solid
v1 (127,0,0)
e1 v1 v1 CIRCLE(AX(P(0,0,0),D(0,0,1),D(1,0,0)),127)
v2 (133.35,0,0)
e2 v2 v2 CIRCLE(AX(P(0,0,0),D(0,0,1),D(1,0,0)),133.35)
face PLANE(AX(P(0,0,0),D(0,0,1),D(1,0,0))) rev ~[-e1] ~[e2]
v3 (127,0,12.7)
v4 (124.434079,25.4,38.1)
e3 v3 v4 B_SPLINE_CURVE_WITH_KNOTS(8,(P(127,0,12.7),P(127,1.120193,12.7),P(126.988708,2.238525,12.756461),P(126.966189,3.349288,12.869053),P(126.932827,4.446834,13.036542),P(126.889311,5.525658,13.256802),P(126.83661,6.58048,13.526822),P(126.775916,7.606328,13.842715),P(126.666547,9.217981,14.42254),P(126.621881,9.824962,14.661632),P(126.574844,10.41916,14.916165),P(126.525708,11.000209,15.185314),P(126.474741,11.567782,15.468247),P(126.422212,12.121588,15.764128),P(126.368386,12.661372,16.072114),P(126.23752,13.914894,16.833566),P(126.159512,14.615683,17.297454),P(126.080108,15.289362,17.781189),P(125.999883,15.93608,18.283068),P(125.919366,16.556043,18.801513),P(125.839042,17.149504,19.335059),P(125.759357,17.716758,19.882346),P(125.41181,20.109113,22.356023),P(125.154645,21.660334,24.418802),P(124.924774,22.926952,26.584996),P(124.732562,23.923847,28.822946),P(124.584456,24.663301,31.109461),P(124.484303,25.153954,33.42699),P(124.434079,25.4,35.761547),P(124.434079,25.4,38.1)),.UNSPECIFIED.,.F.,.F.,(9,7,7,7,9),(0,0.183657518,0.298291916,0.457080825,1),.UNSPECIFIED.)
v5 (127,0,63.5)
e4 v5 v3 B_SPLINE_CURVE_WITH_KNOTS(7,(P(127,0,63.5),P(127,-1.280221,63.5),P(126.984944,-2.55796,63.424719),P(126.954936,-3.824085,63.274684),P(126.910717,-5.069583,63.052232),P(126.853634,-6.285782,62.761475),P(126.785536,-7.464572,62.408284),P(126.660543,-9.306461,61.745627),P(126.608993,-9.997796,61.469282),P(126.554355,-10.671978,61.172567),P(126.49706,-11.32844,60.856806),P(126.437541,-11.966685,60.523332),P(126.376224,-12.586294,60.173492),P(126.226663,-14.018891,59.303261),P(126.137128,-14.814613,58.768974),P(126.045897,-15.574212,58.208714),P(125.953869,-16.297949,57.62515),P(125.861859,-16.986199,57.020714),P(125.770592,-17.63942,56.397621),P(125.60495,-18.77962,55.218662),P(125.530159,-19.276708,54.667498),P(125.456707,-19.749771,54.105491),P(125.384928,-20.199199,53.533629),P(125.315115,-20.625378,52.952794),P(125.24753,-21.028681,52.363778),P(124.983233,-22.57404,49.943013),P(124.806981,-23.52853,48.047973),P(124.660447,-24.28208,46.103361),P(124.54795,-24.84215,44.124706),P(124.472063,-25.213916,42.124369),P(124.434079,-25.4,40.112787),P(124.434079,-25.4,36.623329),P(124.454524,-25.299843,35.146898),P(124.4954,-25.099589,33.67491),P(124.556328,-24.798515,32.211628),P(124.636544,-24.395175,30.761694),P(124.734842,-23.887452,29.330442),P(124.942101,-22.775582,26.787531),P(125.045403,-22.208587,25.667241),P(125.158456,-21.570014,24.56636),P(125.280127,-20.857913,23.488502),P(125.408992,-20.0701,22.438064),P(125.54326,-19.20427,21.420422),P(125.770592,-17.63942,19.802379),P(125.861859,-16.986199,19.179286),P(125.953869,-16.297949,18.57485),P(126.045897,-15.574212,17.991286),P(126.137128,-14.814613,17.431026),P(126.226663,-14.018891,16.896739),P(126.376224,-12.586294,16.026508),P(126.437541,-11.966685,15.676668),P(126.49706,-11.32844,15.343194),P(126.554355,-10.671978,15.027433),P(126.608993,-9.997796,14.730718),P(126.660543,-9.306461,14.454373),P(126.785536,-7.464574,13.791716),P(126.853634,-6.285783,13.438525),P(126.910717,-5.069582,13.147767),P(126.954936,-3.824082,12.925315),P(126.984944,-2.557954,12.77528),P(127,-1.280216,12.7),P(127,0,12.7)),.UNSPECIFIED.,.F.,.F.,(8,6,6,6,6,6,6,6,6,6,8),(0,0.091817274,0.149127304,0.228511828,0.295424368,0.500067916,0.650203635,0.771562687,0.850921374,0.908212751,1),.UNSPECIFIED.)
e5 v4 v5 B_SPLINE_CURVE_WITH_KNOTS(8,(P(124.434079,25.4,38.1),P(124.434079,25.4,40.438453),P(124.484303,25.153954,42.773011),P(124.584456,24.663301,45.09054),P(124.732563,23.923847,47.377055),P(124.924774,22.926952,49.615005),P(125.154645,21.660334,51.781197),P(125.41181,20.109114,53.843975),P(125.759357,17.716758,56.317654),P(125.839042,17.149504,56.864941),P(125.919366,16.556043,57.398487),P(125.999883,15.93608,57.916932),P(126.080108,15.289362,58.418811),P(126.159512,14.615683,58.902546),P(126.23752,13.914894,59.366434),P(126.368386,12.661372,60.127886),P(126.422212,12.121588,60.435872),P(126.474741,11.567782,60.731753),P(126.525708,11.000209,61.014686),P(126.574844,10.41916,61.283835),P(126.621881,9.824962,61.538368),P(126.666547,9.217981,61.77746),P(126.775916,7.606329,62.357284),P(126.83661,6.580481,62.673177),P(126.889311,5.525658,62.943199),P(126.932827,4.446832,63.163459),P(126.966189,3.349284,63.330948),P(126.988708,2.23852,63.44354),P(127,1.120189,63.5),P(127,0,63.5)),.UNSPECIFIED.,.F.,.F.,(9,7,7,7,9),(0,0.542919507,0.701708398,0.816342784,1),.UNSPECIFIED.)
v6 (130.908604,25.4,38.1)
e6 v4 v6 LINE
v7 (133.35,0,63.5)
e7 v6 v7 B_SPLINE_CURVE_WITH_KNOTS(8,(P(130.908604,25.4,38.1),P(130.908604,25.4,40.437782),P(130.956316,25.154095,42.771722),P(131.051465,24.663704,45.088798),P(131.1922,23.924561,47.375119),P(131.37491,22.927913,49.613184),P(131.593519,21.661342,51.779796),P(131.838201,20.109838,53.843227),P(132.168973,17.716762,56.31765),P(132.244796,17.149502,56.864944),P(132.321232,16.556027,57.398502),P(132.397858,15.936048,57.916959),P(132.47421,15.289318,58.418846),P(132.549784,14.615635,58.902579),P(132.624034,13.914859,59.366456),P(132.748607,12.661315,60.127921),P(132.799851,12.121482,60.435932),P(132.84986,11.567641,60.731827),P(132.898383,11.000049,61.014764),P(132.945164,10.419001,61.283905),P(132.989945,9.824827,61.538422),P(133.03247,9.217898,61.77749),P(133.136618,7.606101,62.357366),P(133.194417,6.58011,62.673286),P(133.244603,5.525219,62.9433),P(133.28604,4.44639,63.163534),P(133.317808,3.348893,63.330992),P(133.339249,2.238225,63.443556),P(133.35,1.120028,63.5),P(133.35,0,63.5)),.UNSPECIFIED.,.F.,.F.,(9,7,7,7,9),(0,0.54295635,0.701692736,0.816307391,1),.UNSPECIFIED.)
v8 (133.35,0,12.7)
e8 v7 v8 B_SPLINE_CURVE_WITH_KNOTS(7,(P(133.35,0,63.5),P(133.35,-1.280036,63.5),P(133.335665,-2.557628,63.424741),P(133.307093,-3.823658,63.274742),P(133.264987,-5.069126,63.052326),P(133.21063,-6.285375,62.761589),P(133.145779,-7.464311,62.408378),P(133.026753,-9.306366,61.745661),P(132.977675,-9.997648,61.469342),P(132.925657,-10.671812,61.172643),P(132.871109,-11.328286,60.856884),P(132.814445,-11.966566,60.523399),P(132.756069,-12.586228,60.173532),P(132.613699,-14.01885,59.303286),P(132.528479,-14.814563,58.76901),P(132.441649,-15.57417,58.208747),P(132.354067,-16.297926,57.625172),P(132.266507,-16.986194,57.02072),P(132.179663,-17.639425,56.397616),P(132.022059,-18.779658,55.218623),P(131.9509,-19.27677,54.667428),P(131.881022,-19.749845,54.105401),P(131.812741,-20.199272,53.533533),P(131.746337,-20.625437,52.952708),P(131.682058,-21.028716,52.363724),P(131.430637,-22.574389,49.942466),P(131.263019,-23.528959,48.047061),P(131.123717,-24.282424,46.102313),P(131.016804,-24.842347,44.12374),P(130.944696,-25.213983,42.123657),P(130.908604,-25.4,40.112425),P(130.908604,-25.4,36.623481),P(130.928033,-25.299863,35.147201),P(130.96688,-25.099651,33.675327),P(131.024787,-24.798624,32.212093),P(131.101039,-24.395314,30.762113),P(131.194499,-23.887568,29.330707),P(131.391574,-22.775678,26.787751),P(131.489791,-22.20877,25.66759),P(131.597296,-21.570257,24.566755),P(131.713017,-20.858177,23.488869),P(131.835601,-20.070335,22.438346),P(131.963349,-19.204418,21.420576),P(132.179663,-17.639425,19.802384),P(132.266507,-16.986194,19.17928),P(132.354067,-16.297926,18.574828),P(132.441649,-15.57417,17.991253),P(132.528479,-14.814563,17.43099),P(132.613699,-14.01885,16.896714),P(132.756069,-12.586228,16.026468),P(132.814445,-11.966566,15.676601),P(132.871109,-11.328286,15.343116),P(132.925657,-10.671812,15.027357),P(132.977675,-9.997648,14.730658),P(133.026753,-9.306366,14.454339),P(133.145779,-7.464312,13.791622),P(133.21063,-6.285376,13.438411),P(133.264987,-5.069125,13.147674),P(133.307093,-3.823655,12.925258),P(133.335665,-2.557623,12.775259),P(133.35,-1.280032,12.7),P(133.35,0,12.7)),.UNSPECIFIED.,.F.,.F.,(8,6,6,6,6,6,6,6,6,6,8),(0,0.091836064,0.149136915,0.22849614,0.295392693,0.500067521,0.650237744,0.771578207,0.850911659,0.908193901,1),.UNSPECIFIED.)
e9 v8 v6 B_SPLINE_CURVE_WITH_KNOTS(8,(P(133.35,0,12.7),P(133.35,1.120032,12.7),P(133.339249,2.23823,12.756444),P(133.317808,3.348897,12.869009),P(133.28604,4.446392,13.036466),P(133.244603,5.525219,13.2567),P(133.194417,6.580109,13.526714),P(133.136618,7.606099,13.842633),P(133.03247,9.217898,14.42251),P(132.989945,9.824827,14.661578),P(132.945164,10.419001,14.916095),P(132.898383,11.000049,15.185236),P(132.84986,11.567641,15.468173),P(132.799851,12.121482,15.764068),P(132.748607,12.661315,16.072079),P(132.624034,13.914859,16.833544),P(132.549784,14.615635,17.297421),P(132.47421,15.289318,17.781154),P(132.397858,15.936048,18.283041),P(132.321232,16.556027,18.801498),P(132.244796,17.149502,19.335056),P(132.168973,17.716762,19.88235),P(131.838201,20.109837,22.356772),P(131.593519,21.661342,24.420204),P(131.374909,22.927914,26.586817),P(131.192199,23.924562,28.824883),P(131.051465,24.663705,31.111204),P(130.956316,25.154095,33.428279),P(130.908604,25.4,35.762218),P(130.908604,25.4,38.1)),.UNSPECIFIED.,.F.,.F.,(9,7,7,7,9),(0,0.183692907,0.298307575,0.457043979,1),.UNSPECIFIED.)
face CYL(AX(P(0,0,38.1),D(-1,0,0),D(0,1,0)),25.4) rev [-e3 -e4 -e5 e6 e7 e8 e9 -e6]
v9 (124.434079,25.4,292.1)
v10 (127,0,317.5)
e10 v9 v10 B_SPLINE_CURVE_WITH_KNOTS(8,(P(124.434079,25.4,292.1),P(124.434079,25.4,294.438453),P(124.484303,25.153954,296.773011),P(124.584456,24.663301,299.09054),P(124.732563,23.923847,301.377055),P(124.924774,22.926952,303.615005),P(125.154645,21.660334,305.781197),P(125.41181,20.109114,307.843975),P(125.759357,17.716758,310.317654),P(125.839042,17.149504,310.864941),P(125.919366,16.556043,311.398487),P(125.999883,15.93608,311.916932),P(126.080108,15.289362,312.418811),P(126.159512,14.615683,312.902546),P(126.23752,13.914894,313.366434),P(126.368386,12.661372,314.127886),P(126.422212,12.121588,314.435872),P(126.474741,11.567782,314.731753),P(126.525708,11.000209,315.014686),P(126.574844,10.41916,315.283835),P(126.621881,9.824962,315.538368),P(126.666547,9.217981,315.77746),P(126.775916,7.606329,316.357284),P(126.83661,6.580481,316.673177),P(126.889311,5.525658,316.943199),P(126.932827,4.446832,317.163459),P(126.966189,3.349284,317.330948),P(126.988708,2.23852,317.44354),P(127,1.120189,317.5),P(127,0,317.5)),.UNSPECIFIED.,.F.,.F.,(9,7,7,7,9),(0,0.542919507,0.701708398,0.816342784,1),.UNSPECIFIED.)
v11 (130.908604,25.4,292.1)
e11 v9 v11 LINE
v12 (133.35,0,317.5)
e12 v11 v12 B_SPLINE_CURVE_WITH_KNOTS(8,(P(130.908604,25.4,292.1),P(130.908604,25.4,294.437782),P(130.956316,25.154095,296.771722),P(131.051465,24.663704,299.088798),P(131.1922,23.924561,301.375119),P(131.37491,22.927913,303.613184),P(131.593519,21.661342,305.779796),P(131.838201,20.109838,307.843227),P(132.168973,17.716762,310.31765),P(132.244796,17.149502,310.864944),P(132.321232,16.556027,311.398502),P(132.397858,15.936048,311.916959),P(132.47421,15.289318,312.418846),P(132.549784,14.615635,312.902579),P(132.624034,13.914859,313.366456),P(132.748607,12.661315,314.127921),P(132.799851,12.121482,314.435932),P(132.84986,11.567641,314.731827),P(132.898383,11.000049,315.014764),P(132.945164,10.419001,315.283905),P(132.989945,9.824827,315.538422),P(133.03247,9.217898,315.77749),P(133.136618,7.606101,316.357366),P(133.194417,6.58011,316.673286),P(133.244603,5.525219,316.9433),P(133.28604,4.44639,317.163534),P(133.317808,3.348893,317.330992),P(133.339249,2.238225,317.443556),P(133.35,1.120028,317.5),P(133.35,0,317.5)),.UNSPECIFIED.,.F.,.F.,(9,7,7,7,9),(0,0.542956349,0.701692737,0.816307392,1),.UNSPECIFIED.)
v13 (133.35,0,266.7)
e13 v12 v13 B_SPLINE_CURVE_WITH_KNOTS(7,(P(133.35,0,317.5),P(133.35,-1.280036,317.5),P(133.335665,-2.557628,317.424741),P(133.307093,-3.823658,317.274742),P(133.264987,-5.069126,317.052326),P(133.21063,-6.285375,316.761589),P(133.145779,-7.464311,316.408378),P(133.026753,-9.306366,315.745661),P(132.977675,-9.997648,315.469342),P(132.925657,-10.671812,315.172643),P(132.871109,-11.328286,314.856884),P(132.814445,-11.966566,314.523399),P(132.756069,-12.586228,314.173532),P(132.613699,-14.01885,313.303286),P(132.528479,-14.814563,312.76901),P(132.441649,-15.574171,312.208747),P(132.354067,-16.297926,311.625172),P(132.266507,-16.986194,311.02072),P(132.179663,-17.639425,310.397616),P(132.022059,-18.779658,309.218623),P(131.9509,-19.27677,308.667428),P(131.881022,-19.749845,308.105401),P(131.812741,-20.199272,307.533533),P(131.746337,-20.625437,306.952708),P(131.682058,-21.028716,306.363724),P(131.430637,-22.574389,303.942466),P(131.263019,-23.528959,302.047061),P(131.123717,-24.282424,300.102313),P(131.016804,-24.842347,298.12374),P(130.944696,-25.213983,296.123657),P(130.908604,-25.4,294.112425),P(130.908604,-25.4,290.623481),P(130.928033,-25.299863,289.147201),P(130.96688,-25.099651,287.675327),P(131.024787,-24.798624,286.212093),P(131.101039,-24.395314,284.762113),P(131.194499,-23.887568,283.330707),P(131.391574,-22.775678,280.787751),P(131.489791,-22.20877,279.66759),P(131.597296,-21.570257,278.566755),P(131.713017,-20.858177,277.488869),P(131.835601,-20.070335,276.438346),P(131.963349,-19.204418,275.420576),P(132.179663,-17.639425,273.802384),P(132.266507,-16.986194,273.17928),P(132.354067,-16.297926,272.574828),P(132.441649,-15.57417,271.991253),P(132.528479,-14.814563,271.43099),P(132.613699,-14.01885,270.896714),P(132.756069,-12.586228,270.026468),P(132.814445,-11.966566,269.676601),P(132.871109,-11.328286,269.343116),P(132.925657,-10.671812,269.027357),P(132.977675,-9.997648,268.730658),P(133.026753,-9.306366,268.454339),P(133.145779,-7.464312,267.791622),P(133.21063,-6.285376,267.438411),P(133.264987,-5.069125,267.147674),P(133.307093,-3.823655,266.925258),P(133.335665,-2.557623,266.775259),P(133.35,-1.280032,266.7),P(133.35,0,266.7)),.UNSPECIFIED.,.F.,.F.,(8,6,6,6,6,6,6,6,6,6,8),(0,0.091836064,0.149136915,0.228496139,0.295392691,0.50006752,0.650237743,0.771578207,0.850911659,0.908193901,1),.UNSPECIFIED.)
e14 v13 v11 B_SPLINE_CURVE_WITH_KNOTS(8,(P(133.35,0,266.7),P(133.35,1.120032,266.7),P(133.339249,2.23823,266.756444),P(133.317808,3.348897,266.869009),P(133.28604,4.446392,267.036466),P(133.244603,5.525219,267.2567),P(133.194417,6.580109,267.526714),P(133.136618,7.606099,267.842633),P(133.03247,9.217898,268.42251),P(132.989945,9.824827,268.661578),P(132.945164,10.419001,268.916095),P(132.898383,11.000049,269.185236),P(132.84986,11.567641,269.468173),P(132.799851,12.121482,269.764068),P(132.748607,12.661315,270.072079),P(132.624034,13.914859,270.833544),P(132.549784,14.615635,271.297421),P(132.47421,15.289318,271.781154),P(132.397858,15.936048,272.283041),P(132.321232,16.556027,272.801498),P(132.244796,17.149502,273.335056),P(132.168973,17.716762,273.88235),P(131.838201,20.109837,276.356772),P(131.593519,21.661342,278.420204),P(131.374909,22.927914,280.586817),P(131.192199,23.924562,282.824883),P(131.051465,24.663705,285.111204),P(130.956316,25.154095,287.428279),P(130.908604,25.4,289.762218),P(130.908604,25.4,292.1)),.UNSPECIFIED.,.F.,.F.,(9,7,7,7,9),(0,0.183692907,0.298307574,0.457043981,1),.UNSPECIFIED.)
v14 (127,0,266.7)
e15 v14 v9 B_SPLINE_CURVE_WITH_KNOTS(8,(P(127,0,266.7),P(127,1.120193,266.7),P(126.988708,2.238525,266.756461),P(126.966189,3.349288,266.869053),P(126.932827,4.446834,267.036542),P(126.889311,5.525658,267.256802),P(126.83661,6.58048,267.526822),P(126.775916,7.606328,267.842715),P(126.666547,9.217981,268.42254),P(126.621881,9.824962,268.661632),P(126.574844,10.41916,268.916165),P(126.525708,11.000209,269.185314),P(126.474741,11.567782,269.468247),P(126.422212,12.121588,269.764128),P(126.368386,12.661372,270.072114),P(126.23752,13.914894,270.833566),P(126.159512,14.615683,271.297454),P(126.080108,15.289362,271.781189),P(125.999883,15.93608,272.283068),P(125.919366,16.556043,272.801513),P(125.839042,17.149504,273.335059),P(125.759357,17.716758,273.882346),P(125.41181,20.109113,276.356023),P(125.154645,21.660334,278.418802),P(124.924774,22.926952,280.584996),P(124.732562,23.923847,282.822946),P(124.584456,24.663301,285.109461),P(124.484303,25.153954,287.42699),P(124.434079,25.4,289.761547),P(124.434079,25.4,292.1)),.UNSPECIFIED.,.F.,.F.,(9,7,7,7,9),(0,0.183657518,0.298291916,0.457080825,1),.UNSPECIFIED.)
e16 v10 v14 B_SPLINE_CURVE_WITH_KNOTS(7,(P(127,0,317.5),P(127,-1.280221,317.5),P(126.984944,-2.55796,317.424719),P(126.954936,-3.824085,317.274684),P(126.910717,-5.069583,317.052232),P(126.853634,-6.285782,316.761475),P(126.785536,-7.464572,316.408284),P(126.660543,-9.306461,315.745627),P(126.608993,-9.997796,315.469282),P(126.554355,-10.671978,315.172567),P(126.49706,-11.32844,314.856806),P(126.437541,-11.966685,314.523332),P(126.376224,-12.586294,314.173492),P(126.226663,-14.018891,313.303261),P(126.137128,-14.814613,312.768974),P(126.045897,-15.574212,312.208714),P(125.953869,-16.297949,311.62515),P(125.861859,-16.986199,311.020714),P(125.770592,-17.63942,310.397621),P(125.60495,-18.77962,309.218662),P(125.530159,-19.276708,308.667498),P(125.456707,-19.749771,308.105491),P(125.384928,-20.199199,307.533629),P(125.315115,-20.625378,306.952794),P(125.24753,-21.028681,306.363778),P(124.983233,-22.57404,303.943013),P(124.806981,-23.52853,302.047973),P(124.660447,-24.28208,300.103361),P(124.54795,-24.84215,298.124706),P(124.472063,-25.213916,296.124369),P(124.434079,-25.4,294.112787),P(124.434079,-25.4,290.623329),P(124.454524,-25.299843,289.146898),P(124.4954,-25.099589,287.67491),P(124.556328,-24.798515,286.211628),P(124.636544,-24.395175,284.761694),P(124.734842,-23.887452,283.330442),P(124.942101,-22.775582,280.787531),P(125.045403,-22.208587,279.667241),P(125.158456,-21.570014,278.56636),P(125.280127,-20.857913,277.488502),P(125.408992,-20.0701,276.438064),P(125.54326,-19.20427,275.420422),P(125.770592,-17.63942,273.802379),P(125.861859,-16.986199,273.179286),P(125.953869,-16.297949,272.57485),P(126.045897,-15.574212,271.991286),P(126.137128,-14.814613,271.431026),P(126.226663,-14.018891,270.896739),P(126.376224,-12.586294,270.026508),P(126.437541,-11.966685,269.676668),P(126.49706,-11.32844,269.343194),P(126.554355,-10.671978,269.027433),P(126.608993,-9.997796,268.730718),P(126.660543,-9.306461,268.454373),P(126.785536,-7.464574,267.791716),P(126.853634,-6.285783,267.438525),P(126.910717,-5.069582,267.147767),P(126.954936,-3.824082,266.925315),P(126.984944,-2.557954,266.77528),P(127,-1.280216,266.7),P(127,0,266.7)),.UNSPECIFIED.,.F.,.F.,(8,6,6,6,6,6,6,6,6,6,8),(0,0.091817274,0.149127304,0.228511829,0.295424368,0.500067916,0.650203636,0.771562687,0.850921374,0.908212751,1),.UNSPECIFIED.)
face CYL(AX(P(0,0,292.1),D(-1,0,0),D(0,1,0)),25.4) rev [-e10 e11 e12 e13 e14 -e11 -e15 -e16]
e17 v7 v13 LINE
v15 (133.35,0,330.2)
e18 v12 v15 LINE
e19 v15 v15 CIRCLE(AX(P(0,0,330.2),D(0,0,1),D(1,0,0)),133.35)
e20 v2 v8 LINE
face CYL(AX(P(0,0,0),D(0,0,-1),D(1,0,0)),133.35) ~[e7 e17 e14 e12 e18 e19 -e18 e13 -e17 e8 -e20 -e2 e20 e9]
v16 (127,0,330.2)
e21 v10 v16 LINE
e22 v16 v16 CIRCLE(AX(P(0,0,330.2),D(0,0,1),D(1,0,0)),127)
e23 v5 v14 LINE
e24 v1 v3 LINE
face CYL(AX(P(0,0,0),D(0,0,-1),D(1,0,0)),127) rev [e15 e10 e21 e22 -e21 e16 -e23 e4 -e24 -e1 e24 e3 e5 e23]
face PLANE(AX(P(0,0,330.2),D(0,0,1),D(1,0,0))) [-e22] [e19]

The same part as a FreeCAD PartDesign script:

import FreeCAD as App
import Part
import Sketcher

V = App.Vector
Q = App.Units.Quantity

doc = App.newDocument("Part")
params = doc.addObject("Spreadsheet::Sheet", "Params")
for row, (alias, value) in enumerate([
    ("sketch1_diameter", "10 in"),
    ("sketch1_diameter2", "10.5 in"),
    ("pad1_length", "13 in"),
    ("sketch2_diameter", "2 in"),
    ("pocket1_length", "20 in"),
], start=1):
    params.set(f"A{row}", alias)
    params.set(f"B{row}", "=" + value)
    params.setAlias(f"B{row}", alias)

body = doc.addObject("PartDesign::Body", "Body")

sketch1 = body.newObject("Sketcher::SketchObject", "Sketch")
sketch1.AttachmentSupport = (doc.getObject("XY_Plane"), [""])
sketch1.MapMode = "FlatFace"
sketch1.addGeometry([
    Part.Circle(V(0, 0, 0), V(0, 0, 1), 133),
    Part.Circle(V(0, 0, 0), V(0, 0, 1), 127),
], False)
sketch1.addConstraint([
    Sketcher.Constraint("Coincident", 0, 3, -1, 1),
    Sketcher.Constraint("Coincident", 1, 3, -1, 1),
    Sketcher.Constraint("Diameter", 1, Q("10 in")),
    Sketcher.Constraint("Diameter", 0, Q("10.5 in")),
])
sketch1.setExpression("Constraints[2]", "Params.sketch1_diameter")
sketch1.setExpression("Constraints[3]", "Params.sketch1_diameter2")
pad1 = body.newObject("PartDesign::Pad", "Pad")
pad1.Profile = sketch1
pad1.setExpression("Length", "Params.pad1_length")

sketch2 = body.newObject("Sketcher::SketchObject", "Sketch001")
sketch2.AttachmentSupport = (doc.getObject("YZ_Plane"), [""])
sketch2.MapMode = "FlatFace"
sketch2.addGeometry([
    Part.Circle(V(0, 38, 0), V(0, 0, 1), 25),
    Part.Circle(V(0, 292, 0), V(0, 0, 1), 25),
], False)
sketch2.addConstraint([
    Sketcher.Constraint("Equal", 0, 1),
    Sketcher.Constraint("PointOnObject", 0, 3, -2),
    Sketcher.Constraint("PointOnObject", 1, 3, -2),
    Sketcher.Constraint("Diameter", 0, Q("2 in")),
    Sketcher.Constraint("DistanceY", 0, 3, 1, 3, Q("10 in")),
    Sketcher.Constraint("DistanceY", -1, 1, 0, 3, Q("1.5 in")),
])
sketch2.setExpression("Constraints[3]", "Params.sketch2_diameter")
pocket1 = body.newObject("PartDesign::Pocket", "Pocket")
pocket1.Profile = sketch2
pocket1.setExpression("Length", "Params.pocket1_length")
pocket1.Reversed = True

doc.recompute()
